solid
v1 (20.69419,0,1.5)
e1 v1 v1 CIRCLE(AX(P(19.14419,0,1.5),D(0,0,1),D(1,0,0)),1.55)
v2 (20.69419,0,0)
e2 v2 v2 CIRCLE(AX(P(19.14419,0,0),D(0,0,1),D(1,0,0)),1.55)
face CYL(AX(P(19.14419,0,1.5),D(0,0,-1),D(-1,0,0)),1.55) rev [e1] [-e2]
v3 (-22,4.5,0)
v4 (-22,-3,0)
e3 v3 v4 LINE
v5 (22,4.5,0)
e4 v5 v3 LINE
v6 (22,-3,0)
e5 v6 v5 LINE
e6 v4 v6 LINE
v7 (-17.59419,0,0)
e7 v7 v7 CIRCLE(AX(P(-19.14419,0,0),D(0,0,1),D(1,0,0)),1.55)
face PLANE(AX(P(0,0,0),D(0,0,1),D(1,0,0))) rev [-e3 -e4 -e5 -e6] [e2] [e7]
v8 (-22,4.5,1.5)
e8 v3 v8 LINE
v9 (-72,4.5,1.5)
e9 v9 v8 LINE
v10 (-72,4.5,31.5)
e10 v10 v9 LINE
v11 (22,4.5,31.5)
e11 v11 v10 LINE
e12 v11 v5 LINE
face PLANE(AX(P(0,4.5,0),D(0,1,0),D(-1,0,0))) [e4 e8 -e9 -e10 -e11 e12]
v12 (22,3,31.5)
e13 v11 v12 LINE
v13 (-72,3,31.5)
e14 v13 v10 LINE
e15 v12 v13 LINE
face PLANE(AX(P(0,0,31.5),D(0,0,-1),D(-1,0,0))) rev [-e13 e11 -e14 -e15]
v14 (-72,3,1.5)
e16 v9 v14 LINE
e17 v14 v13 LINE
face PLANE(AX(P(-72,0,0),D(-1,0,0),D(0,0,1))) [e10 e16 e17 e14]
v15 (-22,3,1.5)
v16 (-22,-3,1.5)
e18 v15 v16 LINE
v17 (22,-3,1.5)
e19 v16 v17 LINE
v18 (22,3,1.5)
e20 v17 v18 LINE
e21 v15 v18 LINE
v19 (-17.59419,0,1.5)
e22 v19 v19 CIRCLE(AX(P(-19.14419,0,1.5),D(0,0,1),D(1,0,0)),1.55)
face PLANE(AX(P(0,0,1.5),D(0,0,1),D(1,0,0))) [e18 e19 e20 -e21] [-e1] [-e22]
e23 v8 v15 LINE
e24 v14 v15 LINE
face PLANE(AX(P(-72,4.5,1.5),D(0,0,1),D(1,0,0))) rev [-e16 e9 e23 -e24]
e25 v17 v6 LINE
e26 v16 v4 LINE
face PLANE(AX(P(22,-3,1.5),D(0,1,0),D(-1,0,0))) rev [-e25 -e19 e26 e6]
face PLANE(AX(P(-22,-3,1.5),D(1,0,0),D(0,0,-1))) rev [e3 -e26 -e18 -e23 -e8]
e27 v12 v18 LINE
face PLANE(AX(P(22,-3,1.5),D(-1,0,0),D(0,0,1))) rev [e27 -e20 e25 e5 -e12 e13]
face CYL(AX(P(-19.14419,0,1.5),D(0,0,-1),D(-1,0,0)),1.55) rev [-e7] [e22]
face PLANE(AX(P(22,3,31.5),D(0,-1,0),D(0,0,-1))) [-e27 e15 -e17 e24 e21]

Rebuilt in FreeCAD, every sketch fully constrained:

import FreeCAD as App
import Part
import Sketcher
Q = App.Units.Quantity

doc = App.newDocument("Part")
params = doc.addObject("Spreadsheet::Sheet", "Params")
for row, (alias, value) in enumerate([
    ("sketch1_diameter", "3.1 mm"),
    ("sketch1_width", "44 mm"),
    ("sketch1_height", "6 mm"),
    ("pad1_length", "1.5 mm"),
    ("sketch2_width", "44 mm"),
    ("sketch2_height", "1.5 mm"),
    ("pad2_length", "1.5 mm"),
    ("sketch3_width", "44 mm"),
    ("sketch3_height", "1.5 mm"),
    ("pad3_length", "31.5 mm"),
    ("sketch4_height", "30 mm"),
    ("sketch4_width", "1.5 mm"),
    ("pad4_length", "50 mm"),
], start=1):
    params.set(f"A{row}", alias)
    params.set(f"B{row}", "=" + value)
    params.setAlias(f"B{row}", alias)

body = doc.addObject("PartDesign::Body", "Body")

# Sketch on XY plane
sketch1 = doc.addObject("Sketcher::SketchObject", "Sketch")
body.addObject(sketch1)
sketch1.AttachmentSupport = (doc.XY_Plane, [""])
sketch1.MapMode = "FlatFace"
sketch1.addGeometry([
    Part.LineSegment(App.Vector(-22, 3, 0), App.Vector(-22, -3, 0)),  # 0
    Part.LineSegment(App.Vector(-22, -3, 0), App.Vector(22, -3, 0)),  # 1
    Part.LineSegment(App.Vector(22, -3, 0), App.Vector(22, 3, 0)),  # 2
    Part.LineSegment(App.Vector(22, 3, 0), App.Vector(-22, 3, 0)),  # 3
    Part.Circle(App.Vector(-19.14419, 0, 0), App.Vector(0, 0, 1), 1.55),  # 4
    Part.Circle(App.Vector(19.14419, 0, 0), App.Vector(0, 0, 1), 1.55),  # 5
], False)
sketch1.addConstraint([
    Sketcher.Constraint("Coincident", 0, 2, 1, 1),
    Sketcher.Constraint("Coincident", 1, 2, 2, 1),
    Sketcher.Constraint("Coincident", 2, 2, 3, 1),
    Sketcher.Constraint("Coincident", 3, 2, 0, 1),
    Sketcher.Constraint("Vertical", 0),
    Sketcher.Constraint("Horizontal", 1),
    Sketcher.Constraint("Vertical", 2),
    Sketcher.Constraint("Horizontal", 3),
    Sketcher.Constraint("Equal", 4, 5),
    Sketcher.Constraint("Symmetric", 4, 3, 5, 3, -1, 1),
    Sketcher.Constraint("Symmetric", 0, 2, 2, 2, -1, 1),
    Sketcher.Constraint("PointOnObject", 4, 3, -1),
    Sketcher.Constraint("Diameter", 4, Q("3.1 mm")),
    Sketcher.Constraint("DistanceX", 1, 1, 1, 2, Q("44 mm")),
    Sketcher.Constraint("DistanceY", 0, 2, 0, 1, Q("6 mm")),
    Sketcher.Constraint("DistanceX", 4, 3, -1, 1, Q("19.14419 mm")),
])
sketch1.setExpression("Constraints[12]", "Params.sketch1_diameter")
sketch1.setExpression("Constraints[13]", "Params.sketch1_width")
sketch1.setExpression("Constraints[14]", "Params.sketch1_height")
pad1 = doc.addObject("PartDesign::Pad", "Pad")
body.addObject(pad1)
pad1.Profile = sketch1
pad1.setExpression("Length", "Params.pad1_length")

# Sketch on XZ plane
sketch2 = doc.addObject("Sketcher::SketchObject", "Sketch001")
body.addObject(sketch2)
sketch2.AttachmentSupport = (doc.XZ_Plane, [""])
sketch2.MapMode = "FlatFace"
sketch2.AttachmentOffset = App.Placement(App.Vector(0, 0, -3), App.Rotation())
sketch2.addGeometry([
    Part.LineSegment(App.Vector(-22, 0, 0), App.Vector(-22, 1.5, 0)),
    Part.LineSegment(App.Vector(-22, 1.5, 0), App.Vector(22, 1.5, 0)),
    Part.LineSegment(App.Vector(22, 1.5, 0), App.Vector(22, 0, 0)),
    Part.LineSegment(App.Vector(22, 0, 0), App.Vector(-22, 0, 0)),
], False)
sketch2.addConstraint([
    Sketcher.Constraint("Coincident", 0, 2, 1, 1),
    Sketcher.Constraint("Coincident", 1, 2, 2, 1),
    Sketcher.Constraint("Coincident", 2, 2, 3, 1),
    Sketcher.Constraint("Coincident", 3, 2, 0, 1),
    Sketcher.Constraint("Vertical", 0),
    Sketcher.Constraint("Horizontal", 1),
    Sketcher.Constraint("Vertical", 2),
    Sketcher.Constraint("Horizontal", 3),
    Sketcher.Constraint("Symmetric", 2, 2, 3, 2, -1, 1),
    Sketcher.Constraint("DistanceX", 1, 1, 1, 2, Q("44 mm")),
    Sketcher.Constraint("DistanceY", 0, 1, 0, 2, Q("1.5 mm")),
])
sketch2.setExpression("Constraints[9]", "Params.sketch2_width")
sketch2.setExpression("Constraints[10]", "Params.sketch2_height")
pad2 = doc.addObject("PartDesign::Pad", "Pad001")
body.addObject(pad2)
pad2.Profile = sketch2
pad2.setExpression("Length", "Params.pad2_length")
pad2.Reversed = True

# Sketch on XY plane
sketch3 = doc.addObject("Sketcher::SketchObject", "Sketch002")
body.addObject(sketch3)
sketch3.AttachmentSupport = (doc.XY_Plane, [""])
sketch3.MapMode = "FlatFace"
sketch3.addGeometry([
    Part.LineSegment(App.Vector(22, 4.5, 0), App.Vector(22, 3, 0)),
    Part.LineSegment(App.Vector(22, 3, 0), App.Vector(-22, 3, 0)),
    Part.LineSegment(App.Vector(-22, 3, 0), App.Vector(-22, 4.5, 0)),
    Part.LineSegment(App.Vector(-22, 4.5, 0), App.Vector(22, 4.5, 0)),
], False)
sketch3.addConstraint([
    Sketcher.Constraint("Coincident", 0, 2, 1, 1),
    Sketcher.Constraint("Coincident", 1, 2, 2, 1),
    Sketcher.Constraint("Coincident", 2, 2, 3, 1),
    Sketcher.Constraint("Coincident", 3, 2, 0, 1),
    Sketcher.Constraint("Vertical", 0),
    Sketcher.Constraint("Horizontal", 1),
    Sketcher.Constraint("Vertical", 2),
    Sketcher.Constraint("Horizontal", 3),
    Sketcher.Constraint("DistanceX", 1, 2, 1, 1, Q("44 mm")),
    Sketcher.Constraint("DistanceY", 0, 2, 0, 1, Q("1.5 mm")),
    Sketcher.Constraint("DistanceX", -1, 1, 0, 2, Q("22 mm")),
    Sketcher.Constraint("DistanceY", -1, 1, 0, 2, Q("3 mm")),
])
sketch3.setExpression("Constraints[8]", "Params.sketch3_width")
sketch3.setExpression("Constraints[9]", "Params.sketch3_height")
pad3 = doc.addObject("PartDesign::Pad", "Pad002")
body.addObject(pad3)
pad3.Profile = sketch3
pad3.setExpression("Length", "Params.pad3_length")

# Sketch on YZ plane
sketch4 = doc.addObject("Sketcher::SketchObject", "Sketch003")
body.addObject(sketch4)
sketch4.AttachmentSupport = (doc.YZ_Plane, [""])
sketch4.MapMode = "FlatFace"
sketch4.AttachmentOffset = App.Placement(App.Vector(0, 0, -22), App.Rotation())
sketch4.addGeometry([
    Part.LineSegment(App.Vector(4.5, 1.5, 0), App.Vector(3, 1.5, 0)),
    Part.LineSegment(App.Vector(3, 1.5, 0), App.Vector(3, 31.5, 0)),
    Part.LineSegment(App.Vector(3, 31.5, 0), App.Vector(4.5, 31.5, 0)),
    Part.LineSegment(App.Vector(4.5, 31.5, 0), App.Vector(4.5, 1.5, 0)),
], False)
sketch4.addConstraint([
    Sketcher.Constraint("Coincident", 0, 2, 1, 1),
    Sketcher.Constraint("Coincident", 1, 2, 2, 1),
    Sketcher.Constraint("Coincident", 2, 2, 3, 1),
    Sketcher.Constraint("Coincident", 3, 2, 0, 1),
    Sketcher.Constraint("Horizontal", 0),
    Sketcher.Constraint("Vertical", 1),
    Sketcher.Constraint("Horizontal", 2),
    Sketcher.Constraint("Vertical", 3),
    Sketcher.Constraint("DistanceY", 1, 1, 1, 2, Q("30 mm")),
    Sketcher.Constraint("DistanceX", 0, 2, 0, 1, Q("1.5 mm")),
    Sketcher.Constraint("DistanceX", -1, 1, 0, 2, Q("3 mm")),
    Sketcher.Constraint("DistanceY", -1, 1, 0, 2, Q("1.5 mm")),
])
sketch4.setExpression("Constraints[8]", "Params.sketch4_height")
sketch4.setExpression("Constraints[9]", "Params.sketch4_width")
pad4 = doc.addObject("PartDesign::Pad", "Pad003")
body.addObject(pad4)
pad4.Profile = sketch4
pad4.setExpression("Length", "Params.pad4_length")
pad4.Reversed = True

doc.recompute()
